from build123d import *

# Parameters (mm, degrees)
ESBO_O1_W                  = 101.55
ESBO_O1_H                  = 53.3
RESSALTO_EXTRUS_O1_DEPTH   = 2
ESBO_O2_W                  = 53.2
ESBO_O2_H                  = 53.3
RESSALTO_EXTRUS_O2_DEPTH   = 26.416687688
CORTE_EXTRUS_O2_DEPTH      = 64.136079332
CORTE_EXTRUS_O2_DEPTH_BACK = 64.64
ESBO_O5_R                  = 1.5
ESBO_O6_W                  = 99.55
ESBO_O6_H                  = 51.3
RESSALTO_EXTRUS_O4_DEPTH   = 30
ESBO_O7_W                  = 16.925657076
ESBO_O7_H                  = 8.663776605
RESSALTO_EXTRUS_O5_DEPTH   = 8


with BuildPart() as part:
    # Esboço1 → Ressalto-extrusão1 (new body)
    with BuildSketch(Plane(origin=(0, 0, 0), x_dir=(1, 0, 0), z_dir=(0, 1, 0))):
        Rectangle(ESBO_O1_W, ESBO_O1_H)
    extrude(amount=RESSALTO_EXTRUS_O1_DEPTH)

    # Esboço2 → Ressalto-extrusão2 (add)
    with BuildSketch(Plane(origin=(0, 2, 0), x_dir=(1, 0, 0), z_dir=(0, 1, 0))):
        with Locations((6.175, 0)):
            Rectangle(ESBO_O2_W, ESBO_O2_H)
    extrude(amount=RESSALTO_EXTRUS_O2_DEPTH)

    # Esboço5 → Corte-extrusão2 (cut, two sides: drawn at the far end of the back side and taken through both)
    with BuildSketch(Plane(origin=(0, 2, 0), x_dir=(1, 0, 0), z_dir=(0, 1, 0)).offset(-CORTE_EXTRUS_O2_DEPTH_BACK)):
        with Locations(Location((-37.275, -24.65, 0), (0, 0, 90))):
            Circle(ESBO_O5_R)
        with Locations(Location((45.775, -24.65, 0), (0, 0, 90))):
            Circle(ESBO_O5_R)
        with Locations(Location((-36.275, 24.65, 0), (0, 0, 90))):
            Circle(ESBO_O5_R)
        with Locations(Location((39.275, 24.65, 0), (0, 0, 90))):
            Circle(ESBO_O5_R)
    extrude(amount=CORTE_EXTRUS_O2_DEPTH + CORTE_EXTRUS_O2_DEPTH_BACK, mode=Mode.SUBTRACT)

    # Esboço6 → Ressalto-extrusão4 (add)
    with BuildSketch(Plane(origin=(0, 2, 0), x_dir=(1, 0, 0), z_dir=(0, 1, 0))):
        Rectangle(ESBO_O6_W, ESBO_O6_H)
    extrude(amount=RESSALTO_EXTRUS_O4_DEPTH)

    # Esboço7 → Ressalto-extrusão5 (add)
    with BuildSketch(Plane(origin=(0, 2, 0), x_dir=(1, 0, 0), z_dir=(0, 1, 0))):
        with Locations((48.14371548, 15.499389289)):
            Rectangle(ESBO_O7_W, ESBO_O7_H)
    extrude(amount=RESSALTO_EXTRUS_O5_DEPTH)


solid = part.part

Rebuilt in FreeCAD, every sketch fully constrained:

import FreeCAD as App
import Part
import Sketcher

V = App.Vector


def add_polygon(sketch, points):
    """Adds a closed chain of lines whose ends are joined by coincident constraints."""
    first, n = sketch.GeometryCount, len(points)
    for a, b in zip(points, points[1:] + points[:1]):
        sketch.addGeometry(Part.LineSegment(App.Vector(*a, 0), App.Vector(*b, 0)), False)
    for i in range(n):
        sketch.addConstraint(Sketcher.Constraint("Coincident", first + i, 2, first + (i + 1) % n, 1))

doc = App.newDocument("Part")
body = doc.addObject("PartDesign::Body", "Body")

# Sketch on XZ plane
sketch1 = body.newObject("Sketcher::SketchObject", "Sketch")
sketch1.AttachmentSupport = (doc.getObject("XZ_Plane"), [""])
sketch1.MapMode = "FlatFace"
add_polygon(sketch1, [(-51, -27), (-51, 27), (51, 27), (51, -27)])  # lines 0-3
sketch1.addConstraint([
    Sketcher.Constraint("Vertical", 0),
    Sketcher.Constraint("Horizontal", 1),
    Sketcher.Constraint("Vertical", 2),
    Sketcher.Constraint("Horizontal", 3),
    Sketcher.Constraint("Symmetric", 0, 2, 2, 2, -1, 1),
    Sketcher.Constraint("DistanceY", 0, 1, 0, 2, 53.3),
    Sketcher.Constraint("DistanceX", 1, 1, 1, 2, 101.55),
])
pad1 = body.newObject("PartDesign::Pad", "Pad")
pad1.Profile = sketch1
pad1.Length = 2
pad1.Reversed = True

# Sketch on XZ plane
sketch2 = body.newObject("Sketcher::SketchObject", "Sketch001")
sketch2.AttachmentSupport = (doc.getObject("XZ_Plane"), [""])
sketch2.MapMode = "FlatFace"
sketch2.AttachmentOffset = App.Placement(V(0, 0, -2), App.Rotation())
add_polygon(sketch2, [(-20, -27), (-20, 27), (33, 27), (33, -27)])  # lines 0-3
sketch2.addConstraint([
    Sketcher.Constraint("Vertical", 0),
    Sketcher.Constraint("Horizontal", 1),
    Sketcher.Constraint("Vertical", 2),
    Sketcher.Constraint("Horizontal", 3),
    Sketcher.Constraint("DistanceX", 1, 1, 1, 2, 53.2),
    Sketcher.Constraint("DistanceY", 0, 1, 0, 2, 53.3),
    Sketcher.Constraint("DistanceY", -1, 1, 0, 2, 26.65),
    Sketcher.Constraint("DistanceX", 0, 2, -1, 1, 20.425),
])
pad2 = body.newObject("PartDesign::Pad", "Pad001")
pad2.Profile = sketch2
pad2.Length = 26.416688
pad2.Reversed = True

# Sketch on XZ plane
sketch3 = body.newObject("Sketcher::SketchObject", "Sketch002")
sketch3.AttachmentSupport = (doc.getObject("XZ_Plane"), [""])
sketch3.MapMode = "FlatFace"
sketch3.AttachmentOffset = App.Placement(V(0, 0, -2), App.Rotation())
sketch3.addGeometry([
    Part.Circle(V(-37.3, 24.6, 0), V(0, 0, 1), 1.5),
    Part.Circle(V(45.8, 24.6, 0), V(0, 0, 1), 1.5),
    Part.Circle(V(-36.3, -24.6, 0), V(0, 0, 1), 1.5),
    Part.Circle(V(39.3, -24.6, 0), V(0, 0, 1), 1.5),
], False)
sketch3.addConstraint([
    Sketcher.Constraint("Equal", 0, 1),
    Sketcher.Constraint("Equal", 1, 2),
    Sketcher.Constraint("Equal", 2, 3),
    Sketcher.Constraint("Horizontal", 0, 3, 1, 3),
    Sketcher.Constraint("Horizontal", 2, 3, 3, 3),
    Sketcher.Constraint("Diameter", 0, 3.0),
    Sketcher.Constraint("DistanceX", 0, 3, 2, 3, 1.0),
    Sketcher.Constraint("DistanceY", 2, 3, 0, 3, 49.3),
    Sketcher.Constraint("DistanceX", 3, 3, 1, 3, 6.5),
    Sketcher.Constraint("DistanceY", -1, 1, 0, 3, 24.65),
    Sketcher.Constraint("DistanceX", 0, 3, 1, 3, 83.05),
    Sketcher.Constraint("DistanceX", 0, 3, -1, 1, 37.275),
])
pocket1 = body.newObject("PartDesign::Pocket", "Pocket")
pocket1.Profile = sketch3
pocket1.Type = "ThroughAll"
pocket1.Midplane = True

# Sketch on XZ plane
sketch4 = body.newObject("Sketcher::SketchObject", "Sketch003")
sketch4.AttachmentSupport = (doc.getObject("XZ_Plane"), [""])
sketch4.MapMode = "FlatFace"
sketch4.AttachmentOffset = App.Placement(V(0, 0, -2), App.Rotation())
add_polygon(sketch4, [(-50, -26), (-50, 26), (50, 26), (50, -26)])  # lines 0-3
sketch4.addConstraint([
    Sketcher.Constraint("Vertical", 0),
    Sketcher.Constraint("Horizontal", 1),
    Sketcher.Constraint("Vertical", 2),
    Sketcher.Constraint("Horizontal", 3),
    Sketcher.Constraint("Symmetric", 0, 2, 2, 2, -1, 1),
    Sketcher.Constraint("DistanceY", 0, 1, 0, 2, 51.3),
    Sketcher.Constraint("DistanceX", 1, 1, 1, 2, 99.55),
])
pad3 = body.newObject("PartDesign::Pad", "Pad002")
pad3.Profile = sketch4
pad3.Length = 30
pad3.Reversed = True

# Sketch on XZ plane
sketch5 = body.newObject("Sketcher::SketchObject", "Sketch004")
sketch5.AttachmentSupport = (doc.getObject("XZ_Plane"), [""])
sketch5.MapMode = "FlatFace"
sketch5.AttachmentOffset = App.Placement(V(0, 0, -2), App.Rotation())
add_polygon(sketch5, [(40, -20), (40, -11), (57, -11), (57, -20)])  # lines 0-3
sketch5.addConstraint([
    Sketcher.Constraint("Vertical", 0),
    Sketcher.Constraint("Horizontal", 1),
    Sketcher.Constraint("Vertical", 2),
    Sketcher.Constraint("Horizontal", 3),
    Sketcher.Constraint("DistanceY", 0, 2, -1, 1, 11.167501),
    Sketcher.Constraint("DistanceX", 1, 1, 1, 2, 16.925657),
    Sketcher.Constraint("DistanceY", 0, 1, 0, 2, 8.663777),
    Sketcher.Constraint("DistanceX", -1, 1, 0, 2, 39.680887),
])
pad4 = body.newObject("PartDesign::Pad", "Pad003")
pad4.Profile = sketch5
pad4.Length = 8
pad4.Reversed = True

doc.recompute()
